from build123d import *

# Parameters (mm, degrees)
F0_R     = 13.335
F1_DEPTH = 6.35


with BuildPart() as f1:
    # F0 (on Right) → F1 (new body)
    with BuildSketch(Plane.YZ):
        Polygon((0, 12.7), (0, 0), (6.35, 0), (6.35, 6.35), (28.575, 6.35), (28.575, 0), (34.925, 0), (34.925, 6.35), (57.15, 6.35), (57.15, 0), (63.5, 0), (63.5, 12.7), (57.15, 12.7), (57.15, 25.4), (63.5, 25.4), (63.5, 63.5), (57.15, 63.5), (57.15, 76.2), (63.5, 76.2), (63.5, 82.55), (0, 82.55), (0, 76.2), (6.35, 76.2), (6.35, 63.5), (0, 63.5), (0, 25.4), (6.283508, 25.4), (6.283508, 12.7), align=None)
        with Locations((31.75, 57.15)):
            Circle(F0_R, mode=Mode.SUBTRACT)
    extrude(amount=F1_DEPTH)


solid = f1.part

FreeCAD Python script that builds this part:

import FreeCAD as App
import Part
import Sketcher
from FreeCAD import Vector
Q = App.Units.Quantity


def add_polygon(sketch, points):
    """Adds a closed chain of lines whose ends are joined by coincident constraints."""
    first, n = sketch.GeometryCount, len(points)
    for a, b in zip(points, points[1:] + points[:1]):
        sketch.addGeometry(Part.LineSegment(App.Vector(*a, 0), App.Vector(*b, 0)), False)
    for i in range(n):
        sketch.addConstraint(Sketcher.Constraint("Coincident", first + i, 2, first + (i + 1) % n, 1))

doc = App.newDocument("Part")
body = doc.addObject("PartDesign::Body", "Body")

sketch1 = doc.addObject("Sketcher::SketchObject", "Sketch")
body.addObject(sketch1)
sketch1.AttachmentSupport = (doc.YZ_Plane, [""])
sketch1.MapMode = "FlatFace"
add_polygon(sketch1, [(0, 13), (0, 0), (6, 0), (6, 6), (29, 6), (29, 0), (35, 0), (35, 6), (57, 6), (57, 0), (64, 0), (64, 13), (57, 13), (57, 25), (64, 25), (64, 64), (57, 64), (57, 76), (64, 76), (64, 83), (0, 83), (0, 76), (6, 76), (6, 64), (0, 64), (0, 25), (6, 25), (6, 13)])
sketch1.addGeometry(Part.Circle(Vector(32, 57, 0), Vector(0, 0, 1), 13), False)
sketch1.addConstraint([
    Sketcher.Constraint("Vertical", 0),
    Sketcher.Constraint("Horizontal", 1),
    Sketcher.Constraint("Vertical", 2),
    Sketcher.Constraint("Horizontal", 3),
    Sketcher.Constraint("Vertical", 4),
    Sketcher.Constraint("Horizontal", 5),
    Sketcher.Constraint("Vertical", 6),
    Sketcher.Constraint("Horizontal", 7),
    Sketcher.Constraint("Vertical", 8),
    Sketcher.Constraint("Horizontal", 9),
    Sketcher.Constraint("Vertical", 10),
    Sketcher.Constraint("Horizontal", 11),
    Sketcher.Constraint("Vertical", 12),
    Sketcher.Constraint("Horizontal", 13),
    Sketcher.Constraint("Vertical", 14),
    Sketcher.Constraint("Horizontal", 15),
    Sketcher.Constraint("Vertical", 16),
    Sketcher.Constraint("Horizontal", 17),
    Sketcher.Constraint("Vertical", 18),
    Sketcher.Constraint("Horizontal", 19),
    Sketcher.Constraint("Vertical", 20),
    Sketcher.Constraint("Horizontal", 21),
    Sketcher.Constraint("Vertical", 22),
    Sketcher.Constraint("Horizontal", 23),
    Sketcher.Constraint("Vertical", 24),
    Sketcher.Constraint("Horizontal", 25),
    Sketcher.Constraint("Vertical", 26),
    Sketcher.Constraint("Horizontal", 27),
    Sketcher.Constraint("Coincident", 0, 2, -1, 1),
    Sketcher.Constraint("PointOnObject", 4, 2, -1),
    Sketcher.Constraint("PointOnObject", 8, 2, -1),
    Sketcher.Constraint("PointOnObject", 19, 2, -2),
    Sketcher.Constraint("PointOnObject", 23, 2, -2),
    Sketcher.Constraint("Horizontal", 3, 2, 6, 2),
    Sketcher.Constraint("Horizontal", 17, 2, 20, 2),
    Sketcher.Constraint("Horizontal", 15, 2, 22, 2),
    Sketcher.Constraint("Horizontal", 13, 2, 24, 2),
    Sketcher.Constraint("Horizontal", 11, 2, 26, 2),
    Sketcher.Constraint("Vertical", 8, 2, 11, 2),
    Sketcher.Constraint("Vertical", 10, 2, 13, 2),
    Sketcher.Constraint("Vertical", 12, 2, 15, 2),
    Sketcher.Constraint("Vertical", 14, 2, 17, 2),
    Sketcher.Constraint("Vertical", 2, 2, 21, 2),
    Sketcher.Constraint("Equal", 1, 5),
    Sketcher.Constraint("Equal", 3, 7),
    Sketcher.Constraint("Equal", 5, 9),
    Sketcher.Constraint("Equal", 23, 2),
    Sketcher.Constraint("Equal", 10, 12),
    Sketcher.Constraint("Equal", 12, 16),
    Sketcher.Constraint("Equal", 8, 18),
    Sketcher.Constraint("Diameter", 28, Q("1.05 in")),
    Sketcher.Constraint("DistanceX", 19, 2, 19, 1, Q("2.5 in")),
    Sketcher.Constraint("DistanceY", 0, 2, 0, 1, Q("0.5 in")),
    Sketcher.Constraint("DistanceY", 14, 1, 14, 2, Q("1.5 in")),
    Sketcher.Constraint("DistanceX", 1, 2, 28, 3, Q("1 in")),
    Sketcher.Constraint("DistanceY", 2, 2, 28, 3, Q("2 in")),
    Sketcher.Constraint("DistanceX", 2, 2, 7, 2, Q("2 in")),
    Sketcher.Constraint("DistanceX", 25, 1, 25, 2, 6.283508),
])
pad1 = doc.addObject("PartDesign::Pad", "Pad")
body.addObject(pad1)
pad1.Profile = sketch1
pad1.Length = Q("0.25 in")

doc.recompute()
